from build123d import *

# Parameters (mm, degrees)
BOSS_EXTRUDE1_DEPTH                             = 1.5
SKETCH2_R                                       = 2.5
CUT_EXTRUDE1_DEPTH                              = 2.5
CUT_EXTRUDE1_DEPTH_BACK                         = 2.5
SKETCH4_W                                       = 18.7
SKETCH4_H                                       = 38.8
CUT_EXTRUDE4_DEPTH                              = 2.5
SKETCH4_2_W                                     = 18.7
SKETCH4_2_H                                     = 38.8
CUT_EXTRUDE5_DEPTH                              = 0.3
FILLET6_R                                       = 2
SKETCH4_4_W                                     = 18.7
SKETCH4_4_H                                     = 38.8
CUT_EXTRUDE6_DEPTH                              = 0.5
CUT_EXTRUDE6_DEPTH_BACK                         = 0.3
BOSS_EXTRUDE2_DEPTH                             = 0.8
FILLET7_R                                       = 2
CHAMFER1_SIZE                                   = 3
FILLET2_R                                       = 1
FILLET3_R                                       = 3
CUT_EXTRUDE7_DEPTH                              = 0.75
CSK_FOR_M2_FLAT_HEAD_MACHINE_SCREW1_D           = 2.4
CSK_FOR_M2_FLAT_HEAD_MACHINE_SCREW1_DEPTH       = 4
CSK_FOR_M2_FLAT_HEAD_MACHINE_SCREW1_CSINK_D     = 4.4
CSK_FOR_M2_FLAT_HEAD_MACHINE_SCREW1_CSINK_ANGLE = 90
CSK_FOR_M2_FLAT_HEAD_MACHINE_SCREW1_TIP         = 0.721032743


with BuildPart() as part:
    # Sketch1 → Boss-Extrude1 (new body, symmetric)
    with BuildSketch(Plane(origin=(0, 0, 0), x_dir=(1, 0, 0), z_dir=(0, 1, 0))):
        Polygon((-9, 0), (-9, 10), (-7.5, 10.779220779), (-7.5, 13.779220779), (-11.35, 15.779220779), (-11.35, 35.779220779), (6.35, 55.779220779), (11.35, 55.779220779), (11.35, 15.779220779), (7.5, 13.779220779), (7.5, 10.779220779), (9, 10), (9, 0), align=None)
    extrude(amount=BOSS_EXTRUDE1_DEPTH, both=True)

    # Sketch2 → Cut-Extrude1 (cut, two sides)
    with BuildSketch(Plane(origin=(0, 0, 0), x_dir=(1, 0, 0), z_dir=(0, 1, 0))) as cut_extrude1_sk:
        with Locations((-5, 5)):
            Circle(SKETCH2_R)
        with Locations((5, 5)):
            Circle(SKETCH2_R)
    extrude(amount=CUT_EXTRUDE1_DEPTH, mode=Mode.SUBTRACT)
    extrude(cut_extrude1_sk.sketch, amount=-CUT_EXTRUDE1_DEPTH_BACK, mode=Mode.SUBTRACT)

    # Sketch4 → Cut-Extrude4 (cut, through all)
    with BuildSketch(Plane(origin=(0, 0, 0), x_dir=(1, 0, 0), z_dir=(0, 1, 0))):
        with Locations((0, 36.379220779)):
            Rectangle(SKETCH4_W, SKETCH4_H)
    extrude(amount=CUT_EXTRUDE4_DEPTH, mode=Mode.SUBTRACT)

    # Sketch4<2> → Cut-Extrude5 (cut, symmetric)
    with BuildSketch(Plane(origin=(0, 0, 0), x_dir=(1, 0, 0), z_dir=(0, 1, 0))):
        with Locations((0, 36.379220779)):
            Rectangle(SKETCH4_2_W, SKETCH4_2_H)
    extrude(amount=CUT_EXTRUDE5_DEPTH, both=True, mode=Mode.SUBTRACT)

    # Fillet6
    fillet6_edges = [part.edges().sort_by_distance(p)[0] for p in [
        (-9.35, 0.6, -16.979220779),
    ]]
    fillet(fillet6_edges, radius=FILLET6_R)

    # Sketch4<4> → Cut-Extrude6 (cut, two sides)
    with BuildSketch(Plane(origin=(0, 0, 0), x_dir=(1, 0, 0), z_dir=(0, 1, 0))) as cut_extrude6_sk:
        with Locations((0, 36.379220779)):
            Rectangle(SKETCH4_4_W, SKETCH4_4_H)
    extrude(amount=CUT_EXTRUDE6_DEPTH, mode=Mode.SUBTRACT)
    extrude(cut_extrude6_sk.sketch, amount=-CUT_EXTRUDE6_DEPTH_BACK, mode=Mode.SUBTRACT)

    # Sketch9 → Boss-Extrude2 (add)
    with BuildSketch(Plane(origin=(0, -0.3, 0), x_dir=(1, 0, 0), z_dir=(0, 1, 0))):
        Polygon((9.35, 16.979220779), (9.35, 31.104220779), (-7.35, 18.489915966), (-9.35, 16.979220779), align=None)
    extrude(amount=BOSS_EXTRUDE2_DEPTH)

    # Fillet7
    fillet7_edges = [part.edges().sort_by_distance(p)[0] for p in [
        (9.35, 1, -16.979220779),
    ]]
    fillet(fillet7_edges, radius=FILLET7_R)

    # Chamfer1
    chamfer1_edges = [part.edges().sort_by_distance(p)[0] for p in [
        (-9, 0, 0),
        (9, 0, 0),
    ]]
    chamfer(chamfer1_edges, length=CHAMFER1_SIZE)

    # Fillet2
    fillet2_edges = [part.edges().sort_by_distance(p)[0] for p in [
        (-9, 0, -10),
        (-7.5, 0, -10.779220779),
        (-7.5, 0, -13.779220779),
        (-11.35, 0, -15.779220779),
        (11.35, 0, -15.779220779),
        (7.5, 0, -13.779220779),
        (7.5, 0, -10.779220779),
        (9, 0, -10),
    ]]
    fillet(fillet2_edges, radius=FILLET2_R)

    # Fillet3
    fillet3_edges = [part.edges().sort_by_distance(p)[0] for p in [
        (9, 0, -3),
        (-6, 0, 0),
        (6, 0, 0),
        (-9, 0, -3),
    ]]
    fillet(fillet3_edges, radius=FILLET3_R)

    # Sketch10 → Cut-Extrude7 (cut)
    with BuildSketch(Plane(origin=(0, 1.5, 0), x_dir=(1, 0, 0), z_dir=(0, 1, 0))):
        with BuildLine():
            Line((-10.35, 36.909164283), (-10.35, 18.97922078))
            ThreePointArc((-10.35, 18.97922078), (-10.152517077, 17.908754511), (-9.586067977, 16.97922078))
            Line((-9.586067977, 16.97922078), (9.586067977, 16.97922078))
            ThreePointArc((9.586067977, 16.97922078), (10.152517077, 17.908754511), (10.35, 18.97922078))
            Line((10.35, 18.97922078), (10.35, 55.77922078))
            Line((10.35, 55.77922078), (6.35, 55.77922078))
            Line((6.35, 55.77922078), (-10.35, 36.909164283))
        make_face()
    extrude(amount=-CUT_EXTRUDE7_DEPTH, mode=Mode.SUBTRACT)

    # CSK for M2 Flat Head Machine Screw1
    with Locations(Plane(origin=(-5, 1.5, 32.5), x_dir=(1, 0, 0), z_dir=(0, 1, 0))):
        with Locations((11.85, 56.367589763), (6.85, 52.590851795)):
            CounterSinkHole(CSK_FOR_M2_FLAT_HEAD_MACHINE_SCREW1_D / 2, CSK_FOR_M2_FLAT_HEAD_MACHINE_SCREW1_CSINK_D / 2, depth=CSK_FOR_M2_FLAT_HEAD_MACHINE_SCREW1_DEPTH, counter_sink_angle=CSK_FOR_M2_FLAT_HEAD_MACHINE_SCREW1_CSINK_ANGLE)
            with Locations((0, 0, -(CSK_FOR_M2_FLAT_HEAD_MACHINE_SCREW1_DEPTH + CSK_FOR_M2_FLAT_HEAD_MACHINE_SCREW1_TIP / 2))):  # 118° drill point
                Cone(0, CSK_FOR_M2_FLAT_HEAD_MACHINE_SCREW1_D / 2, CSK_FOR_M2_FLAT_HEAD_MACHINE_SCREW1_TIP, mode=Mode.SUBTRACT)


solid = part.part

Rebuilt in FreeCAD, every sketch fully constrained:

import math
import FreeCAD as App
import Part
import Sketcher

V = App.Vector
Q = App.Units.Quantity


def edges_at(feature, points):
    """Names of the edges that pass closest to the given points."""
    edges = feature.Shape.Edges
    near = lambda p: min(range(len(edges)), key=lambda i: edges[i].distToShape(Part.Vertex(*p))[0])
    return sorted({f"Edge{near(p) + 1}" for p in points})

doc = App.newDocument("Part")
body = doc.addObject("PartDesign::Body", "Body")

sketch1 = body.newObject("Sketcher::SketchObject", "Sketch")
sketch1.AttachmentSupport = (doc.getObject("XZ_Plane"), [""])
sketch1.MapMode = "FlatFace"
sketch1.addGeometry(Part.LineSegment(V(-9, -10, 0), V(-9, 0, 0)), False)
sketch1.addGeometry(Part.LineSegment(V(-9, 0, 0), V(9, 0, 0)), False)
sketch1.addGeometry(Part.LineSegment(V(9, 0, 0), V(9, -10, 0)), False)
sketch1.addGeometry(Part.LineSegment(V(9, -10, 0), V(7.5, -10.8, 0)), False)
sketch1.addGeometry(Part.LineSegment(V(7.5, -10.8, 0), V(7.5, -13.8, 0)), False)
sketch1.addGeometry(Part.LineSegment(V(7.5, -13.8, 0), V(11.3, -15.8, 0)), False)
sketch1.addGeometry(Part.LineSegment(V(11.3, -15.8, 0), V(11.3, -55.8, 0)), False)
sketch1.addGeometry(Part.LineSegment(V(11.3, -55.8, 0), V(6.3, -55.8, 0)), False)
sketch1.addGeometry(Part.LineSegment(V(6.3, -55.8, 0), V(-11.3, -35.8, 0)), False)
sketch1.addGeometry(Part.LineSegment(V(-11.3, -35.8, 0), V(-11.3, -15.8, 0)), False)
sketch1.addGeometry(Part.LineSegment(V(-11.3, -15.8, 0), V(-7.5, -13.8, 0)), False)
sketch1.addGeometry(Part.LineSegment(V(-7.5, -13.8, 0), V(-7.5, -10.8, 0)), False)
sketch1.addGeometry(Part.LineSegment(V(-7.5, -10.8, 0), V(-9, -10, 0)), False)
sketch1.addConstraint(Sketcher.Constraint("Coincident", 0, 2, 1, 1))
sketch1.addConstraint(Sketcher.Constraint("Coincident", 1, 2, 2, 1))
sketch1.addConstraint(Sketcher.Constraint("Coincident", 2, 2, 3, 1))
sketch1.addConstraint(Sketcher.Constraint("Coincident", 3, 2, 4, 1))
sketch1.addConstraint(Sketcher.Constraint("Coincident", 4, 2, 5, 1))
sketch1.addConstraint(Sketcher.Constraint("Coincident", 5, 2, 6, 1))
sketch1.addConstraint(Sketcher.Constraint("Coincident", 6, 2, 7, 1))
sketch1.addConstraint(Sketcher.Constraint("Coincident", 7, 2, 8, 1))
sketch1.addConstraint(Sketcher.Constraint("Coincident", 8, 2, 9, 1))
sketch1.addConstraint(Sketcher.Constraint("Coincident", 9, 2, 10, 1))
sketch1.addConstraint(Sketcher.Constraint("Coincident", 10, 2, 11, 1))
sketch1.addConstraint(Sketcher.Constraint("Coincident", 11, 2, 12, 1))
sketch1.addConstraint(Sketcher.Constraint("Coincident", 12, 2, 0, 1))
sketch1.addConstraint(Sketcher.Constraint("Vertical", 0))
sketch1.addConstraint(Sketcher.Constraint("Horizontal", 1))
sketch1.addConstraint(Sketcher.Constraint("Vertical", 2))
sketch1.addConstraint(Sketcher.Constraint("Vertical", 4))
sketch1.addConstraint(Sketcher.Constraint("Vertical", 6))
sketch1.addConstraint(Sketcher.Constraint("Horizontal", 7))
sketch1.addConstraint(Sketcher.Constraint("Vertical", 9))
sketch1.addConstraint(Sketcher.Constraint("Vertical", 11))
sketch1.addConstraint(Sketcher.Constraint("Symmetric", 0, 2, 1, 2, -1, 1))
sketch1.addConstraint(Sketcher.Constraint("Symmetric", 5, 2, 9, 2, -2))
sketch1.addConstraint(Sketcher.Constraint("Symmetric", 4, 2, 10, 2, -2))
sketch1.addConstraint(Sketcher.Constraint("Parallel", 3, 10))
sketch1.addConstraint(Sketcher.Constraint("Parallel", 5, 12))
sketch1.addConstraint(Sketcher.Constraint("Horizontal", 3, 2, 11, 2))
sketch1.addConstraint(Sketcher.Constraint("DistanceX", 1, 1, 1, 2, Q("18 mm")))
sketch1.addConstraint(Sketcher.Constraint("DistanceX", 7, 2, 7, 1, Q("5 mm")))
sketch1.addConstraint(Sketcher.Constraint("DistanceY", 0, 1, 0, 2, Q("10 mm")))
sketch1.addConstraint(Sketcher.Constraint("DistanceY", 4, 2, 4, 1, Q("3 mm")))
sketch1.addConstraint(Sketcher.Constraint("DistanceY", 6, 2, 6, 1, Q("40 mm")))
sketch1.addConstraint(Sketcher.Constraint("DistanceY", 9, 1, 9, 2, Q("20 mm")))
sketch1.addConstraint(Sketcher.Constraint("DistanceY", 5, 2, 4, 2, Q("2 mm")))
sketch1.addConstraint(Sketcher.Constraint("DistanceX", 10, 2, 4, 2, Q("15 mm")))
sketch1.addConstraint(Sketcher.Constraint("DistanceX", 8, 2, 7, 2, Q("17.7 mm")))
pad1 = body.newObject("PartDesign::Pad", "Pad")
pad1.Profile = sketch1
pad1.Length = 3
pad1.Midplane = True

sketch2 = body.newObject("Sketcher::SketchObject", "Sketch001")
sketch2.AttachmentSupport = (doc.getObject("XZ_Plane"), [""])
sketch2.MapMode = "FlatFace"
sketch2.addGeometry(Part.Circle(V(-5, -5, 0), V(0, 0, 1), 2.5), False)
sketch2.addGeometry(Part.Circle(V(5, -5, 0), V(0, 0, 1), 2.5), False)
sketch2.addConstraint(Sketcher.Constraint("Equal", 0, 1))
sketch2.addConstraint(Sketcher.Constraint("Symmetric", 0, 3, 1, 3, -2))
sketch2.addConstraint(Sketcher.Constraint("Diameter", 0, Q("5 mm")))
sketch2.addConstraint(Sketcher.Constraint("DistanceX", 0, 3, -1, 1, Q("5 mm")))
sketch2.addConstraint(Sketcher.Constraint("DistanceY", 0, 3, -1, 1, Q("5 mm")))
pocket1 = body.newObject("PartDesign::Pocket", "Pocket")
pocket1.Profile = sketch2
pocket1.Type = "ThroughAll"
pocket1.Midplane = True

sketch3 = body.newObject("Sketcher::SketchObject", "Sketch002")
sketch3.AttachmentSupport = (doc.getObject("XZ_Plane"), [""])
sketch3.MapMode = "FlatFace"
sketch3.addGeometry(Part.LineSegment(V(-9, -56, 0), V(-9, -17, 0)), False)
sketch3.addGeometry(Part.LineSegment(V(-9, -17, 0), V(9, -17, 0)), False)
sketch3.addGeometry(Part.LineSegment(V(9, -17, 0), V(9, -56, 0)), False)
sketch3.addGeometry(Part.LineSegment(V(9, -56, 0), V(-9, -56, 0)), False)
sketch3.addConstraint(Sketcher.Constraint("Coincident", 0, 2, 1, 1))
sketch3.addConstraint(Sketcher.Constraint("Coincident", 1, 2, 2, 1))
sketch3.addConstraint(Sketcher.Constraint("Coincident", 2, 2, 3, 1))
sketch3.addConstraint(Sketcher.Constraint("Coincident", 3, 2, 0, 1))
sketch3.addConstraint(Sketcher.Constraint("Vertical", 0))
sketch3.addConstraint(Sketcher.Constraint("Horizontal", 1))
sketch3.addConstraint(Sketcher.Constraint("Vertical", 2))
sketch3.addConstraint(Sketcher.Constraint("Horizontal", 3))
sketch3.addConstraint(Sketcher.Constraint("DistanceX", 1, 1, 1, 2, Q("18.7 mm")))
sketch3.addConstraint(Sketcher.Constraint("DistanceY", 0, 1, 0, 2, Q("38.8 mm")))
sketch3.addConstraint(Sketcher.Constraint("DistanceX", 0, 2, -1, 1, Q("9.35 mm")))
sketch3.addConstraint(Sketcher.Constraint("DistanceY", 0, 2, -1, 1, Q("16.979221 mm")))
pocket2 = body.newObject("PartDesign::Pocket", "Pocket001")
pocket2.Profile = sketch3
pocket2.Type = "ThroughAll"

sketch4 = body.newObject("Sketcher::SketchObject", "Sketch003")
sketch4.AttachmentSupport = (doc.getObject("XZ_Plane"), [""])
sketch4.MapMode = "FlatFace"
sketch4.addGeometry(Part.LineSegment(V(-9, -56, 0), V(-9, -17, 0)), False)
sketch4.addGeometry(Part.LineSegment(V(-9, -17, 0), V(9, -17, 0)), False)
sketch4.addGeometry(Part.LineSegment(V(9, -17, 0), V(9, -56, 0)), False)
sketch4.addGeometry(Part.LineSegment(V(9, -56, 0), V(-9, -56, 0)), False)
sketch4.addConstraint(Sketcher.Constraint("Coincident", 0, 2, 1, 1))
sketch4.addConstraint(Sketcher.Constraint("Coincident", 1, 2, 2, 1))
sketch4.addConstraint(Sketcher.Constraint("Coincident", 2, 2, 3, 1))
sketch4.addConstraint(Sketcher.Constraint("Coincident", 3, 2, 0, 1))
sketch4.addConstraint(Sketcher.Constraint("Vertical", 0))
sketch4.addConstraint(Sketcher.Constraint("Horizontal", 1))
sketch4.addConstraint(Sketcher.Constraint("Vertical", 2))
sketch4.addConstraint(Sketcher.Constraint("Horizontal", 3))
sketch4.addConstraint(Sketcher.Constraint("DistanceX", 1, 1, 1, 2, Q("18.7 mm")))
sketch4.addConstraint(Sketcher.Constraint("DistanceY", 0, 1, 0, 2, Q("38.8 mm")))
sketch4.addConstraint(Sketcher.Constraint("DistanceX", 0, 2, -1, 1, Q("9.35 mm")))
sketch4.addConstraint(Sketcher.Constraint("DistanceY", 0, 2, -1, 1, Q("16.979221 mm")))
pocket3 = body.newObject("PartDesign::Pocket", "Pocket002")
pocket3.Profile = sketch4
pocket3.Length = 0.6
pocket3.Midplane = True
doc.recompute()

fillet = body.newObject("PartDesign::Fillet", "Fillet")
fillet.Base = (pocket3, edges_at(pocket3, [(-9.35, 0.6, -16.979)]))
fillet.Radius = 2

sketch5 = body.newObject("Sketcher::SketchObject", "Sketch004")
sketch5.AttachmentSupport = (doc.getObject("XZ_Plane"), [""])
sketch5.MapMode = "FlatFace"
sketch5.addGeometry(Part.LineSegment(V(-9, -56, 0), V(-9, -17, 0)), False)
sketch5.addGeometry(Part.LineSegment(V(-9, -17, 0), V(9, -17, 0)), False)
sketch5.addGeometry(Part.LineSegment(V(9, -17, 0), V(9, -56, 0)), False)
sketch5.addGeometry(Part.LineSegment(V(9, -56, 0), V(-9, -56, 0)), False)
sketch5.addConstraint(Sketcher.Constraint("Coincident", 0, 2, 1, 1))
sketch5.addConstraint(Sketcher.Constraint("Coincident", 1, 2, 2, 1))
sketch5.addConstraint(Sketcher.Constraint("Coincident", 2, 2, 3, 1))
sketch5.addConstraint(Sketcher.Constraint("Coincident", 3, 2, 0, 1))
sketch5.addConstraint(Sketcher.Constraint("Vertical", 0))
sketch5.addConstraint(Sketcher.Constraint("Horizontal", 1))
sketch5.addConstraint(Sketcher.Constraint("Vertical", 2))
sketch5.addConstraint(Sketcher.Constraint("Horizontal", 3))
sketch5.addConstraint(Sketcher.Constraint("DistanceX", 1, 1, 1, 2, Q("18.7 mm")))
sketch5.addConstraint(Sketcher.Constraint("DistanceY", 0, 1, 0, 2, Q("38.8 mm")))
sketch5.addConstraint(Sketcher.Constraint("DistanceX", 0, 2, -1, 1, Q("9.35 mm")))
sketch5.addConstraint(Sketcher.Constraint("DistanceY", 0, 2, -1, 1, Q("16.979221 mm")))
pocket4 = body.newObject("PartDesign::Pocket", "Pocket003")
pocket4.Profile = sketch5
pocket4.Type = "TwoLengths"
pocket4.Length = 0.5
pocket4.Length2 = 0.3

sketch6 = body.newObject("Sketcher::SketchObject", "Sketch005")
sketch6.AttachmentSupport = (doc.getObject("XZ_Plane"), [""])
sketch6.MapMode = "FlatFace"
sketch6.AttachmentOffset = App.Placement(V(0, 0, 0.3), App.Rotation())
sketch6.addGeometry(Part.LineSegment(V(9.3, -17, 0), V(9.3, -31.1, 0)), False)
sketch6.addGeometry(Part.LineSegment(V(9.3, -31.1, 0), V(-7.3, -18.5, 0)), False)
sketch6.addGeometry(Part.LineSegment(V(-7.3, -18.5, 0), V(-9.3, -17, 0)), False)
sketch6.addGeometry(Part.LineSegment(V(-9.3, -17, 0), V(9.3, -17, 0)), False)
sketch6.addConstraint(Sketcher.Constraint("Coincident", 0, 2, 1, 1))
sketch6.addConstraint(Sketcher.Constraint("Coincident", 1, 2, 2, 1))
sketch6.addConstraint(Sketcher.Constraint("Coincident", 2, 2, 3, 1))
sketch6.addConstraint(Sketcher.Constraint("Coincident", 3, 2, 0, 1))
sketch6.addConstraint(Sketcher.Constraint("Vertical", 0))
sketch6.addConstraint(Sketcher.Constraint("Horizontal", 3))
sketch6.addConstraint(Sketcher.Constraint("Parallel", 1, 2))
sketch6.addConstraint(Sketcher.Constraint("DistanceX", 3, 1, 3, 2, Q("18.7 mm")))
sketch6.addConstraint(Sketcher.Constraint("DistanceX", 2, 2, 1, 2, Q("2 mm")))
sketch6.addConstraint(Sketcher.Constraint("DistanceY", 0, 2, 0, 1, Q("14.125 mm")))
sketch6.addConstraint(Sketcher.Constraint("DistanceX", -1, 1, 0, 2, Q("9.35 mm")))
sketch6.addConstraint(Sketcher.Constraint("DistanceY", 0, 2, -1, 1, Q("31.104221 mm")))
pad2 = body.newObject("PartDesign::Pad", "Pad001")
pad2.Profile = sketch6
pad2.Length = 0.8
pad2.Reversed = True
doc.recompute()

fillet2 = body.newObject("PartDesign::Fillet", "Fillet001")
fillet2.Base = (pad2, edges_at(pad2, [(9.35, 1, -16.979)]))
fillet2.Radius = 2
doc.recompute()

chamfer = body.newObject("PartDesign::Chamfer", "Chamfer")
chamfer.Base = (fillet2, edges_at(fillet2, [(-9, 0, 0), (9, 0, 0)]))
chamfer.Size = 3
doc.recompute()

fillet3 = body.newObject("PartDesign::Fillet", "Fillet002")
fillet3.Base = (chamfer, edges_at(chamfer, [
    (-9, 0, -10),
    (-7.5, 0, -10.779),
    (-7.5, 0, -13.779),
    (-11.35, 0, -15.779),
    (11.35, 0, -15.779),
    (7.5, 0, -13.779),
    (7.5, 0, -10.779),
    (9, 0, -10),
]))
fillet3.Radius = 1
doc.recompute()

fillet4 = body.newObject("PartDesign::Fillet", "Fillet003")
fillet4.Base = (fillet3, edges_at(fillet3, [
    (9, 0, -3),
    (-6, 0, 0),
    (6, 0, 0),
    (-9, 0, -3),
]))
fillet4.Radius = 3

sketch7 = body.newObject("Sketcher::SketchObject", "Sketch006")
sketch7.AttachmentSupport = (doc.getObject("XZ_Plane"), [""])
sketch7.MapMode = "FlatFace"
sketch7.AttachmentOffset = App.Placement(V(0, 0, -1.5), App.Rotation())
sketch7.addGeometry(Part.LineSegment(V(-10.3, -36.9, 0), V(-10.3, -19, 0)), False)
sketch7.addGeometry(Part.ArcOfCircle(Part.Circle(V(-7.4, -19, 0), V(0, 0, 1), 3), math.radians(138), math.radians(180)), False)
sketch7.addGeometry(Part.LineSegment(V(-9.6, -17, 0), V(9.6, -17, 0)), False)
sketch7.addGeometry(Part.ArcOfCircle(Part.Circle(V(7.4, -19, 0), V(0, 0, 1), 3), math.radians(0), math.radians(42)), False)
sketch7.addGeometry(Part.LineSegment(V(10.3, -19, 0), V(10.3, -55.8, 0)), False)
sketch7.addGeometry(Part.LineSegment(V(10.3, -55.8, 0), V(6.3, -55.8, 0)), False)
sketch7.addGeometry(Part.LineSegment(V(6.3, -55.8, 0), V(-10.3, -36.9, 0)), False)
sketch7.addConstraint(Sketcher.Constraint("Tangent", 0, 2, 1, 2))
sketch7.addConstraint(Sketcher.Constraint("Coincident", 1, 1, 2, 1))
sketch7.addConstraint(Sketcher.Constraint("Coincident", 2, 2, 3, 2))
sketch7.addConstraint(Sketcher.Constraint("Tangent", 3, 1, 4, 1))
sketch7.addConstraint(Sketcher.Constraint("Coincident", 4, 2, 5, 1))
sketch7.addConstraint(Sketcher.Constraint("Coincident", 5, 2, 6, 1))
sketch7.addConstraint(Sketcher.Constraint("Coincident", 6, 2, 0, 1))
sketch7.addConstraint(Sketcher.Constraint("Vertical", 0))
sketch7.addConstraint(Sketcher.Constraint("Horizontal", 2))
sketch7.addConstraint(Sketcher.Constraint("Vertical", 4))
sketch7.addConstraint(Sketcher.Constraint("Horizontal", 5))
sketch7.addConstraint(Sketcher.Constraint("Equal", 1, 3))
sketch7.addConstraint(Sketcher.Constraint("Symmetric", 1, 3, 3, 3, -2))
sketch7.addConstraint(Sketcher.Constraint("Radius", 1, Q("3 mm")))
sketch7.addConstraint(Sketcher.Constraint("DistanceX", 5, 2, 5, 1, Q("4 mm")))
sketch7.addConstraint(Sketcher.Constraint("DistanceY", 4, 2, 4, 1, Q("36.8 mm")))
sketch7.addConstraint(Sketcher.Constraint("DistanceY", 0, 2, 1, 1, Q("2 mm")))
sketch7.addConstraint(Sketcher.Constraint("DistanceX", 1, 3, 3, 3, Q("14.7 mm")))
sketch7.addConstraint(Sketcher.Constraint("Distance", 6, Q("25.198592 mm")))
sketch7.addConstraint(Sketcher.Constraint("DistanceY", 1, 3, -1, 1, Q("18.979221 mm")))
pocket5 = body.newObject("PartDesign::Pocket", "Pocket004")
pocket5.Profile = sketch7
pocket5.Length = 0.75
pocket5.Reversed = True

sketch8 = body.newObject("Sketcher::SketchObject", "Sketch007")
sketch8.AttachmentSupport = (doc.getObject("XZ_Plane"), [""])
sketch8.MapMode = "FlatFace"
sketch8.AttachmentOffset = App.Placement(V(0, 0, -1.5), App.Rotation())
sketch8.addGeometry(Part.Circle(V(6.8, -23.9, 0), V(0, 0, 1), 1.2), False)
sketch8.addGeometry(Part.Circle(V(1.9, -20.1, 0), V(0, 0, 1), 1.2), False)
sketch8.addConstraint(Sketcher.Constraint("Equal", 0, 1))
sketch8.addConstraint(Sketcher.Constraint("Diameter", 0, Q("2.4 mm")))
sketch8.addConstraint(Sketcher.Constraint("DistanceX", 1, 3, 0, 3, Q("5 mm")))
sketch8.addConstraint(Sketcher.Constraint("DistanceX", -1, 1, 0, 3, Q("6.85 mm")))
sketch8.addConstraint(Sketcher.Constraint("DistanceY", 0, 3, -1, 1, Q("23.86759 mm")))
sketch8.addConstraint(Sketcher.Constraint("DistanceY", 1, 3, -1, 1, Q("20.090852 mm")))
doc.recompute()
hole = body.newObject("PartDesign::Hole", "Hole")
hole.Profile = sketch8
hole.ThreadType = "None"
hole.Diameter = 2.4
hole.DepthType = "Dimension"
hole.Depth = 4
hole.DrillPoint = "Angled"
hole.DrillPointAngle = 118
hole.HoleCutType = "Countersink"
hole.HoleCutDiameter = 4.4
hole.HoleCutCountersinkAngle = 90
hole.Reversed = True

doc.recompute()
